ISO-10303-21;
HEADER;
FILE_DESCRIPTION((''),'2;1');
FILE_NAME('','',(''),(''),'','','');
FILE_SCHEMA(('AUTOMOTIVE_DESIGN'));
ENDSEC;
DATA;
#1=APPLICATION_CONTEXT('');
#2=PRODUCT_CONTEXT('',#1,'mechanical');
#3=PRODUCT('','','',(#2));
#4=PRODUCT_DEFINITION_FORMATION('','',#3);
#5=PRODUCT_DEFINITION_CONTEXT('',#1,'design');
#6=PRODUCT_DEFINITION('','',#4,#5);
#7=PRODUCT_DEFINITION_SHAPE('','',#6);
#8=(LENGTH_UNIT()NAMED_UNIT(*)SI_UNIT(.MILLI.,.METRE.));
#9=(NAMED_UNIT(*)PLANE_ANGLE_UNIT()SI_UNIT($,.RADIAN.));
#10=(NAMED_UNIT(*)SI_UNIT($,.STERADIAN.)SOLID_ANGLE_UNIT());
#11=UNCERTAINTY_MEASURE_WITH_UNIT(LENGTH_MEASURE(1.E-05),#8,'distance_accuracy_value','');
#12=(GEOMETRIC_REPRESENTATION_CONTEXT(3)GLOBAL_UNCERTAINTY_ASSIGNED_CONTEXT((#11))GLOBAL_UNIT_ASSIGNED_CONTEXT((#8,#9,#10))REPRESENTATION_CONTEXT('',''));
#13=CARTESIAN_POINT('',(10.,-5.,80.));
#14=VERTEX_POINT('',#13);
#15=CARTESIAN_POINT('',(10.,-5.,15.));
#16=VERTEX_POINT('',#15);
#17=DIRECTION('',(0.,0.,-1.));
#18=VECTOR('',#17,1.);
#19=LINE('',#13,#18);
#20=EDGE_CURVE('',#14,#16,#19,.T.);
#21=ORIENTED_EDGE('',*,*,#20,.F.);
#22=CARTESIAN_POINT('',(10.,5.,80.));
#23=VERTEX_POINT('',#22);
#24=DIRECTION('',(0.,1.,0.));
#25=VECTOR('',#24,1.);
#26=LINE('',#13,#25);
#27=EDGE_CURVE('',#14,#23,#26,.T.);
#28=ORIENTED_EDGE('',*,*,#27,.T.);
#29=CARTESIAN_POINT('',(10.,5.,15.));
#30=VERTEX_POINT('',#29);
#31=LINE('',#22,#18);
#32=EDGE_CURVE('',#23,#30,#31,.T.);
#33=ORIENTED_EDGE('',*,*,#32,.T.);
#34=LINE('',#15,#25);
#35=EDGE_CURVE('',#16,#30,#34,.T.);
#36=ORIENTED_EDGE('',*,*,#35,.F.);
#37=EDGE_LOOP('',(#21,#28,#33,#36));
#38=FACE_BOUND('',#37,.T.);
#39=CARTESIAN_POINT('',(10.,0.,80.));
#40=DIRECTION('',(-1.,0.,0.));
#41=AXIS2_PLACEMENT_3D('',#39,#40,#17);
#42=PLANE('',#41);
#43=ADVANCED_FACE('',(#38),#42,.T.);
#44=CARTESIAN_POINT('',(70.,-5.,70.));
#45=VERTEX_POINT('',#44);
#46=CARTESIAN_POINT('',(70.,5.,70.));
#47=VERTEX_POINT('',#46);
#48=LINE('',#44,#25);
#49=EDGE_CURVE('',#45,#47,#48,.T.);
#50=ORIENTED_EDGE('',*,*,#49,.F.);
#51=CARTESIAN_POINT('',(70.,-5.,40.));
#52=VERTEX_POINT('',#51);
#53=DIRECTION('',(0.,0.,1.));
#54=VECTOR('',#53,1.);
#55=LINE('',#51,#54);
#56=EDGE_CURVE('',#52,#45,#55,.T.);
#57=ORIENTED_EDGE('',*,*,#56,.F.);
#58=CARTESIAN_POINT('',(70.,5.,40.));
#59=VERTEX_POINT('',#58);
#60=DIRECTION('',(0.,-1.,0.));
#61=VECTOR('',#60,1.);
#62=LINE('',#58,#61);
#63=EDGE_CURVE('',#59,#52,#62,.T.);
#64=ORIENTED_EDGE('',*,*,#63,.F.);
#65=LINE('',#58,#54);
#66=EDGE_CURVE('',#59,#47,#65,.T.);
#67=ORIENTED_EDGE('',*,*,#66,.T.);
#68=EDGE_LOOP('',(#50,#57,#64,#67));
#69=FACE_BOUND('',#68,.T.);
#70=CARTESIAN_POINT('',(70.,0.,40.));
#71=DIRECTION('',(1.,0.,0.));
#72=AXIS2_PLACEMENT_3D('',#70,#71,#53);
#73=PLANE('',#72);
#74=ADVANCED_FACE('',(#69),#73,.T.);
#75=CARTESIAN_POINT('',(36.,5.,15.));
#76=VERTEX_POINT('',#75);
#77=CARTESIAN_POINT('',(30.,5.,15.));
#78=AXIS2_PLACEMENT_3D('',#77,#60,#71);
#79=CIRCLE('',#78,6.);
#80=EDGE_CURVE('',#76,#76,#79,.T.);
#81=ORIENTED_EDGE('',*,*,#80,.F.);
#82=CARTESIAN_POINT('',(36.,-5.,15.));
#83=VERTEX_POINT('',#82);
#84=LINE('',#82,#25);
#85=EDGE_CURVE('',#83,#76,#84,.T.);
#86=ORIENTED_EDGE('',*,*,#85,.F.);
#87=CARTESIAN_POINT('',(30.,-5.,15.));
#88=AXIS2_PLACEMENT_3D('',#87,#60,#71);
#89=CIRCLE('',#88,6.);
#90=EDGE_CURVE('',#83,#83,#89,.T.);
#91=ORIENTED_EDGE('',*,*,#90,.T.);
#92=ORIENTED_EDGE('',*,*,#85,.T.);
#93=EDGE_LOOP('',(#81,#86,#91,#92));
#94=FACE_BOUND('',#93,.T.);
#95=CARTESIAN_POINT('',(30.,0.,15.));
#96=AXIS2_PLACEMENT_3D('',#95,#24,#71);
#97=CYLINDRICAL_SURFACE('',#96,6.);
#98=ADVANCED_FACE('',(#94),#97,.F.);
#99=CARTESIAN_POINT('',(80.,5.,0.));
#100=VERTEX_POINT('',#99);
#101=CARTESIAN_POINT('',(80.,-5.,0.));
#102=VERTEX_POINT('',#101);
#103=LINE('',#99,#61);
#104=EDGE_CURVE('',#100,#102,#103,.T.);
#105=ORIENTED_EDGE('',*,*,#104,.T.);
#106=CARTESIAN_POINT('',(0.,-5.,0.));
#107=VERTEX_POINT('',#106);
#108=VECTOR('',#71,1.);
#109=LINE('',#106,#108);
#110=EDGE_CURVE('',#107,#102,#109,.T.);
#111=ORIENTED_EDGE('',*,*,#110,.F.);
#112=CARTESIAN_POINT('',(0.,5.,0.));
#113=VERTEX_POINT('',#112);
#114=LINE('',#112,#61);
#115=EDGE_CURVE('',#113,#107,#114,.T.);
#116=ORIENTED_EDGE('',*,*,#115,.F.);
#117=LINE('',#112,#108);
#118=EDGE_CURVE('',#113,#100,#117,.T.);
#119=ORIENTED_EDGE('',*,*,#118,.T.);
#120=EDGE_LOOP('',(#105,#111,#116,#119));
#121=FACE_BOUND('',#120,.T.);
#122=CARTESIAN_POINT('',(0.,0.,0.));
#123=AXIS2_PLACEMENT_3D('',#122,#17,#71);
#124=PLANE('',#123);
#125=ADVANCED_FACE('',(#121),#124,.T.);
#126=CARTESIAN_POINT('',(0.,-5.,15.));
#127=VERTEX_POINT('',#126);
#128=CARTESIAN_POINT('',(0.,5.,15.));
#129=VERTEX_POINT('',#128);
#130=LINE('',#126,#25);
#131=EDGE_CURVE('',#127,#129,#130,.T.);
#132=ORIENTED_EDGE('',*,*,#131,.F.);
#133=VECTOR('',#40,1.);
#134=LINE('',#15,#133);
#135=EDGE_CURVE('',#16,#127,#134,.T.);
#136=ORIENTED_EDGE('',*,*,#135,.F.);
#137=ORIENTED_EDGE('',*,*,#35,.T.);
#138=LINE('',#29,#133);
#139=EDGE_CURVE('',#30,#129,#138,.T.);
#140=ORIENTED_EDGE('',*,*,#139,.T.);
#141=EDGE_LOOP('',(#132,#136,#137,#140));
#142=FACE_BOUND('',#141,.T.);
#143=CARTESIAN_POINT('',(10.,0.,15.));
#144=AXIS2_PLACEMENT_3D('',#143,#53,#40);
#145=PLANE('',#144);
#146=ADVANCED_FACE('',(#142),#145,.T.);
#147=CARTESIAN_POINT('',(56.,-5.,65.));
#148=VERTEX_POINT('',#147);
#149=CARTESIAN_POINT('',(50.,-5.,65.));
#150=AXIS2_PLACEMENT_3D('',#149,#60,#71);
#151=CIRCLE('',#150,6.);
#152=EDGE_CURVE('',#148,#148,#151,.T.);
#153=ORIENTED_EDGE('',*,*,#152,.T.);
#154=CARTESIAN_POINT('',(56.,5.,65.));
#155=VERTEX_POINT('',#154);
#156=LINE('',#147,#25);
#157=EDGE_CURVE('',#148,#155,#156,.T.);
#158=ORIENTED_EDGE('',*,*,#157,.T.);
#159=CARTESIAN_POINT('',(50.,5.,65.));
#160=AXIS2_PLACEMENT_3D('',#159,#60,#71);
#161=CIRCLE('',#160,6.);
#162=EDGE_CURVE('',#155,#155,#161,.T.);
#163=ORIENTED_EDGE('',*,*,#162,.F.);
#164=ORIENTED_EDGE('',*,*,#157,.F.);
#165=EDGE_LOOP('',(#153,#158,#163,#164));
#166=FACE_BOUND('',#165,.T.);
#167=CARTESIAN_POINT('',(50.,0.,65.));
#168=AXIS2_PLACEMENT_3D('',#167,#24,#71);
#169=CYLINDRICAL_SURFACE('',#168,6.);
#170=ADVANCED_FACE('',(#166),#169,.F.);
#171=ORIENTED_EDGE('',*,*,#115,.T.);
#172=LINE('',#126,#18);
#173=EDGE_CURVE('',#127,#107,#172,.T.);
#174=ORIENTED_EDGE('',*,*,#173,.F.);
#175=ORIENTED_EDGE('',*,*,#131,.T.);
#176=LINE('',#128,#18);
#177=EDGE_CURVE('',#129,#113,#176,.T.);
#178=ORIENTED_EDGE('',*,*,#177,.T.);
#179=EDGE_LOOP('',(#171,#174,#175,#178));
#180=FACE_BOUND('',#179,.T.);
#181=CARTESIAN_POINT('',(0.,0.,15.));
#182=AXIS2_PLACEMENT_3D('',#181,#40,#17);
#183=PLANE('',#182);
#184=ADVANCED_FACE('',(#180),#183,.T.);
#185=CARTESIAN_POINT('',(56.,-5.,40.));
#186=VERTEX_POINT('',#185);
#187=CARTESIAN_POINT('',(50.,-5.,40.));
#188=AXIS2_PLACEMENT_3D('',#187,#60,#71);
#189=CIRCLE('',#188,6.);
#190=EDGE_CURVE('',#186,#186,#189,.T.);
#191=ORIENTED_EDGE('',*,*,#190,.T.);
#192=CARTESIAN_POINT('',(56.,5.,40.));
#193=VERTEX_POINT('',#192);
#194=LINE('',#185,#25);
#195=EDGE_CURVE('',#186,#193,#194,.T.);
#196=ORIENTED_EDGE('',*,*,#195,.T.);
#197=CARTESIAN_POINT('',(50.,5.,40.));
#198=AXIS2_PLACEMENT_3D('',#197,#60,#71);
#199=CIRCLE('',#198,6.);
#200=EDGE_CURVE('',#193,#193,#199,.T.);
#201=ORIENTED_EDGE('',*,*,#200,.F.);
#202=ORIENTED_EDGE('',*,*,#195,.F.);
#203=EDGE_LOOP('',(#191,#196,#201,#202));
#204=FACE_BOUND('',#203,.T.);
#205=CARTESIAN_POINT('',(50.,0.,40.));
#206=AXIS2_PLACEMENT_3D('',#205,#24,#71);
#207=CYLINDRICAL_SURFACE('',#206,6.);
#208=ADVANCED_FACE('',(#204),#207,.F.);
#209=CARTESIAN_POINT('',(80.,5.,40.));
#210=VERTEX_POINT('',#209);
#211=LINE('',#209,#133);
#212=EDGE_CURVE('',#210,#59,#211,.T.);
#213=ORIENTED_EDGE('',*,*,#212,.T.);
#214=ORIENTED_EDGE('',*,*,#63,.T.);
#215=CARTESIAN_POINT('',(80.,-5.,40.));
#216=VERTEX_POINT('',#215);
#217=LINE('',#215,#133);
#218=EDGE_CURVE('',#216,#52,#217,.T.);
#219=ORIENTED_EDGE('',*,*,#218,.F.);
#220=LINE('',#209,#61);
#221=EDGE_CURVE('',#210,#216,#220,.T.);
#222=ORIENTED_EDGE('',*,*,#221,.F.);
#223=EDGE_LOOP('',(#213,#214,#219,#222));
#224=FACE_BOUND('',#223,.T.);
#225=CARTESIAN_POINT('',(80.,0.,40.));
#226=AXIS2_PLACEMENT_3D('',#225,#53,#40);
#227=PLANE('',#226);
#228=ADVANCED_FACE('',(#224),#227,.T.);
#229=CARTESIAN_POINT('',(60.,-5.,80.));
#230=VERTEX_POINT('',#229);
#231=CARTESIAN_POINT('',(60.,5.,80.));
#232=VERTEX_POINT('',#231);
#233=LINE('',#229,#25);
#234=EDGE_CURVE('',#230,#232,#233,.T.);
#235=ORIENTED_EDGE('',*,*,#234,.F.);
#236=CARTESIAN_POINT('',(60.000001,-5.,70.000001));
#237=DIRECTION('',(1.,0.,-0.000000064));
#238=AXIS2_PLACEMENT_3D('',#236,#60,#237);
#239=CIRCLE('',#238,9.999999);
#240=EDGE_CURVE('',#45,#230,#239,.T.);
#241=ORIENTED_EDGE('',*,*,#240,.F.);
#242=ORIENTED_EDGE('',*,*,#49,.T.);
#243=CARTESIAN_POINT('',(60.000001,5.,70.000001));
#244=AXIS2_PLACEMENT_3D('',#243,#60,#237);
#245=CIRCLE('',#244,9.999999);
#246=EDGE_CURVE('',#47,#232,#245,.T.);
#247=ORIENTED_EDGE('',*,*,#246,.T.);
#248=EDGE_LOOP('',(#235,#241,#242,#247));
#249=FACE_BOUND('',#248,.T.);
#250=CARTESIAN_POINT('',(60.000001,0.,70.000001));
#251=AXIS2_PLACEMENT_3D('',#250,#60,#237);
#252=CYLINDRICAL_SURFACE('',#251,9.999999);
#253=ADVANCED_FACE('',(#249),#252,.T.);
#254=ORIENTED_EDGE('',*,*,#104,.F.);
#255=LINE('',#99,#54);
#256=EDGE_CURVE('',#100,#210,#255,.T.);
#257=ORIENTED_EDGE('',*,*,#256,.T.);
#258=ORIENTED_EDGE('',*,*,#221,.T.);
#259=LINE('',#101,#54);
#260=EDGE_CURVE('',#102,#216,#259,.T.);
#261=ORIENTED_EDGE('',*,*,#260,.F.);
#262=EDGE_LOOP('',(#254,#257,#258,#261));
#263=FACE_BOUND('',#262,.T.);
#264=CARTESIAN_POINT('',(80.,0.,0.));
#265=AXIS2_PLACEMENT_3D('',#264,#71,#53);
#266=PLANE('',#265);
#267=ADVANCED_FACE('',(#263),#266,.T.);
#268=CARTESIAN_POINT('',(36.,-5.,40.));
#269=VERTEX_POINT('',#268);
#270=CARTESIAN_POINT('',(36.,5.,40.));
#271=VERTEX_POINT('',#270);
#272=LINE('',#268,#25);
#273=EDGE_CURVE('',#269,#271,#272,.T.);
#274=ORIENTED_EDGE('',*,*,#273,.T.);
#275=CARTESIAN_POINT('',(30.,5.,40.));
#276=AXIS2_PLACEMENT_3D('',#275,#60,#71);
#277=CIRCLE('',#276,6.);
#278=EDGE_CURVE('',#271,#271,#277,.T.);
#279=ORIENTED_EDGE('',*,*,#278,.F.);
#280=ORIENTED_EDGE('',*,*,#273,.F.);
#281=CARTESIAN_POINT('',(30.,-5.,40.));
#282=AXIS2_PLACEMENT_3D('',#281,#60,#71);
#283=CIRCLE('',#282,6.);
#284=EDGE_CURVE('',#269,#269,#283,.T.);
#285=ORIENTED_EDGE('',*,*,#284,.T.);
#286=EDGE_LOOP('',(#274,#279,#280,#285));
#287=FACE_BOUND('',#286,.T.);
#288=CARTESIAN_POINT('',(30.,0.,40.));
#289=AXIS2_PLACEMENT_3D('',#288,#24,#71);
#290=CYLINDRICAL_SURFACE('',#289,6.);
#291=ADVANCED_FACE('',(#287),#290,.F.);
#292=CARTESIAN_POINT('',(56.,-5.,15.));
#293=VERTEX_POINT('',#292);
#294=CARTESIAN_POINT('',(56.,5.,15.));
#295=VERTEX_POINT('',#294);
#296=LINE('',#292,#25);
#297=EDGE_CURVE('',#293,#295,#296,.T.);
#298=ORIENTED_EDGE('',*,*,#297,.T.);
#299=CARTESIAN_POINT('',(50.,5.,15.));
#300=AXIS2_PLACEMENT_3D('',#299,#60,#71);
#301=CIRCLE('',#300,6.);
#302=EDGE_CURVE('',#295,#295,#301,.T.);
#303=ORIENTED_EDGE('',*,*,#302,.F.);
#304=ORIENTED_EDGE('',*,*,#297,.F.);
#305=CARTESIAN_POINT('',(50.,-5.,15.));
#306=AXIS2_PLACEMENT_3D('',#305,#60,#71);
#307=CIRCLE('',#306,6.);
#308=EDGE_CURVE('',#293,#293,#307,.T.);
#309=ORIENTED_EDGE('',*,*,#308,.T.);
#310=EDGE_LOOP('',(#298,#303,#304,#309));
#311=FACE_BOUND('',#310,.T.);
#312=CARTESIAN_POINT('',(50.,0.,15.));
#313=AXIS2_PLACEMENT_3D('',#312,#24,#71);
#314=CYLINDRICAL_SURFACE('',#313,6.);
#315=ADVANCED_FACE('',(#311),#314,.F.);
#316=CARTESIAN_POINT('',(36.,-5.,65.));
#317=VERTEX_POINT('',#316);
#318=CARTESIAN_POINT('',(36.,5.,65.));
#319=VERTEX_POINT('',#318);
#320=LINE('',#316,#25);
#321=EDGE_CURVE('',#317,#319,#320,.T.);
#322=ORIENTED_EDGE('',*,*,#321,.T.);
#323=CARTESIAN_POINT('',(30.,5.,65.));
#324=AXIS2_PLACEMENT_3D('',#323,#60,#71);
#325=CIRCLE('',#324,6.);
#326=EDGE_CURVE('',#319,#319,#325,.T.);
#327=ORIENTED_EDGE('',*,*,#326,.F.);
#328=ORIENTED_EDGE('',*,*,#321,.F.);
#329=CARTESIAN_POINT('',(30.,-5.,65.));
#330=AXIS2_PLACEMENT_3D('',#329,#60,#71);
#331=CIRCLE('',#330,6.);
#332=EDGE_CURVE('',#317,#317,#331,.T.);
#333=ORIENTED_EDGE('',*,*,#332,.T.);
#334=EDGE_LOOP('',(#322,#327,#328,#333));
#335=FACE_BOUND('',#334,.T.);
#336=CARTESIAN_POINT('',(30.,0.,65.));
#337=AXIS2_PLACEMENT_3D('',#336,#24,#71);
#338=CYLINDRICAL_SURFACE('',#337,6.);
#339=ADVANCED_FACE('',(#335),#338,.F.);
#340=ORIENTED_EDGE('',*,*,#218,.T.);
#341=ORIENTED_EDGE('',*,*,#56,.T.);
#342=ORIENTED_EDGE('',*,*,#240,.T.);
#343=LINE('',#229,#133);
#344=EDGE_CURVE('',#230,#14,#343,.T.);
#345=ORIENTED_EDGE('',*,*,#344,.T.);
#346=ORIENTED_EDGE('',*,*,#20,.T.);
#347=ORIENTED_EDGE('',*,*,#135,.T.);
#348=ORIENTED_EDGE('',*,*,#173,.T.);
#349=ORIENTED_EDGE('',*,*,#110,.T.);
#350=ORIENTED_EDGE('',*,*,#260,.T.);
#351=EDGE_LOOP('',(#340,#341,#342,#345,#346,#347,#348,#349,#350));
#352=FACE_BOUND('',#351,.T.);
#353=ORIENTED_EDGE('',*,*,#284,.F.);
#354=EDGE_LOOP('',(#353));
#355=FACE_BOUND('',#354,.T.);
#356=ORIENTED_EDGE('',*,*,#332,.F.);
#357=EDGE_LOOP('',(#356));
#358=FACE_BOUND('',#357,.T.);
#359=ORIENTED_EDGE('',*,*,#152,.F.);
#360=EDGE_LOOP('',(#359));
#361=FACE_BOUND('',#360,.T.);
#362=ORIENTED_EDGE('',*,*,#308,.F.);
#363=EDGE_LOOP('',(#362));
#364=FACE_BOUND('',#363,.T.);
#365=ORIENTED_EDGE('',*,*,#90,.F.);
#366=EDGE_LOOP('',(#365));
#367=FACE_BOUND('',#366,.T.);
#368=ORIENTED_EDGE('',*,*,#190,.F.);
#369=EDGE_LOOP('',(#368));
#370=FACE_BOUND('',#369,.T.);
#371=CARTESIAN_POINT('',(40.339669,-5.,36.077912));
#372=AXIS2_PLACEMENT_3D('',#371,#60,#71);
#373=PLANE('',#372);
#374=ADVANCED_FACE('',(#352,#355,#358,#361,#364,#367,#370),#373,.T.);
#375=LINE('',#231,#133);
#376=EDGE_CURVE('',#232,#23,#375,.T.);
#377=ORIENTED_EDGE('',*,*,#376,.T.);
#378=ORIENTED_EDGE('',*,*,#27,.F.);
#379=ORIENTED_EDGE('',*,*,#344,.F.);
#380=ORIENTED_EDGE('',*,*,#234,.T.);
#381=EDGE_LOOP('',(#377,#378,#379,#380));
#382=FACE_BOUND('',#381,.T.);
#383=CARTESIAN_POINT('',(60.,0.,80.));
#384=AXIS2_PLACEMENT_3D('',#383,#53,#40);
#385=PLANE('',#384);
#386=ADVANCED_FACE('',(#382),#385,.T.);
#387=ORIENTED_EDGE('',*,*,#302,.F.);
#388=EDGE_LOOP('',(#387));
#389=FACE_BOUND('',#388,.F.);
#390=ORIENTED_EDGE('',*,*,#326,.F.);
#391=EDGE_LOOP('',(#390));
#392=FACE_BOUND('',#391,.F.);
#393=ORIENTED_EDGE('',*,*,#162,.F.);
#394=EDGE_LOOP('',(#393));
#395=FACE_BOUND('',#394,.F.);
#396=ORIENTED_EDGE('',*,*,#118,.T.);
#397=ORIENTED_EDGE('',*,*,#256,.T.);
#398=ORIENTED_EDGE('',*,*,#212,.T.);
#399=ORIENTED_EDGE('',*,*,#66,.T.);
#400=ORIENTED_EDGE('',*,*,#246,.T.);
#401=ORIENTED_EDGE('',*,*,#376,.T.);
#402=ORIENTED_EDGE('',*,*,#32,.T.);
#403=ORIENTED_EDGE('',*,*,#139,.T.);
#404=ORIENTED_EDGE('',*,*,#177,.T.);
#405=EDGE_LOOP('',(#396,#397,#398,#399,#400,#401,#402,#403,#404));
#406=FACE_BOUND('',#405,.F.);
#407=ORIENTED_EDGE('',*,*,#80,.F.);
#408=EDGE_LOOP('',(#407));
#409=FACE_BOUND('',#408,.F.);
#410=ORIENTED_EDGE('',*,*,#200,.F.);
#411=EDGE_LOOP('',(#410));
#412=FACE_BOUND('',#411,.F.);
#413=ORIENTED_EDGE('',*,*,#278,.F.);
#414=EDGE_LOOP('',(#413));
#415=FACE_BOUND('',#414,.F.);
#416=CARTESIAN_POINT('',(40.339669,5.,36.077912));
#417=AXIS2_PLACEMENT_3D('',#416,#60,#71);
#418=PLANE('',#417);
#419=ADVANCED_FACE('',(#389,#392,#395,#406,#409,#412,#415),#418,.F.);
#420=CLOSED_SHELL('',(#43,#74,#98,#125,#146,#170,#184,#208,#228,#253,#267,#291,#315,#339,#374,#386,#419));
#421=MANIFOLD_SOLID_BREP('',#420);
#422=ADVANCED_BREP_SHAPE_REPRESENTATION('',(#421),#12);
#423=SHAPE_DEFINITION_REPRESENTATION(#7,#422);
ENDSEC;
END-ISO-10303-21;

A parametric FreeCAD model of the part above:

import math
import FreeCAD as App
import Part
import Sketcher
Q = App.Units.Quantity

doc = App.newDocument("Part")
body = doc.addObject("PartDesign::Body", "Body")

# Sketch on XZ plane
sketch1 = doc.addObject("Sketcher::SketchObject", "Sketch")
body.addObject(sketch1)
sketch1.AttachmentSupport = (doc.XZ_Plane, [""])
sketch1.MapMode = "FlatFace"
sketch1.addGeometry([
    Part.LineSegment(App.Vector(0, 15, 0), App.Vector(0, 0, 0)),  # 0
    Part.LineSegment(App.Vector(0, 0, 0), App.Vector(80, 0, 0)),  # 1
    Part.LineSegment(App.Vector(80, 0, 0), App.Vector(80, 40, 0)),  # 2
    Part.LineSegment(App.Vector(80, 40, 0), App.Vector(70, 40, 0)),  # 3
    Part.LineSegment(App.Vector(70, 40, 0), App.Vector(70, 70, 0)),  # 4
    Part.ArcOfCircle(Part.Circle(App.Vector(60, 70, 0), App.Vector(0, 0, 1), 10), math.radians(0), math.radians(90)),  # 5
    Part.LineSegment(App.Vector(60, 80, 0), App.Vector(10, 80, 0)),  # 6
    Part.LineSegment(App.Vector(10, 80, 0), App.Vector(10, 15, 0)),  # 7
    Part.LineSegment(App.Vector(10, 15, 0), App.Vector(0, 15, 0)),  # 8
    Part.Circle(App.Vector(30, 15, 0), App.Vector(0, 0, 1), 6),  # 9
    Part.Circle(App.Vector(50, 15, 0), App.Vector(0, 0, 1), 6),  # 10
    Part.Circle(App.Vector(30, 40, 0), App.Vector(0, 0, 1), 6),  # 11
    Part.Circle(App.Vector(30, 65, 0), App.Vector(0, 0, 1), 6),  # 12
    Part.Circle(App.Vector(50, 40, 0), App.Vector(0, 0, 1), 6),  # 13
    Part.Circle(App.Vector(50, 65, 0), App.Vector(0, 0, 1), 6),  # 14
], False)
sketch1.addConstraint([
    Sketcher.Constraint("Coincident", 0, 2, 1, 1),
    Sketcher.Constraint("Coincident", 1, 2, 2, 1),
    Sketcher.Constraint("Coincident", 2, 2, 3, 1),
    Sketcher.Constraint("Coincident", 3, 2, 4, 1),
    Sketcher.Constraint("Tangent", 4, 2, 5, 1),
    Sketcher.Constraint("Tangent", 5, 2, 6, 1),
    Sketcher.Constraint("Coincident", 6, 2, 7, 1),
    Sketcher.Constraint("Coincident", 7, 2, 8, 1),
    Sketcher.Constraint("Coincident", 8, 2, 0, 1),
    Sketcher.Constraint("Vertical", 0),
    Sketcher.Constraint("Horizontal", 1),
    Sketcher.Constraint("Vertical", 2),
    Sketcher.Constraint("Horizontal", 3),
    Sketcher.Constraint("Vertical", 4),
    Sketcher.Constraint("Horizontal", 6),
    Sketcher.Constraint("Vertical", 7),
    Sketcher.Constraint("Horizontal", 8),
    Sketcher.Constraint("Coincident", 0, 2, -1, 1),
    Sketcher.Constraint("Equal", 9, 10),
    Sketcher.Constraint("Equal", 10, 11),
    Sketcher.Constraint("Equal", 11, 12),
    Sketcher.Constraint("Equal", 12, 13),
    Sketcher.Constraint("Equal", 13, 14),
    Sketcher.Constraint("Horizontal", 9, 3, 10, 3),
    Sketcher.Constraint("Horizontal", 11, 3, 13, 3),
    Sketcher.Constraint("Horizontal", 12, 3, 14, 3),
    Sketcher.Constraint("Horizontal", 13, 3, 2, 2),
    Sketcher.Constraint("Horizontal", 10, 3, 7, 2),
    Sketcher.Constraint("Vertical", 9, 3, 11, 3),
    Sketcher.Constraint("Vertical", 11, 3, 12, 3),
    Sketcher.Constraint("Vertical", 10, 3, 13, 3),
    Sketcher.Constraint("Vertical", 13, 3, 14, 3),
    Sketcher.Constraint("Equal", 3, 8),
    Sketcher.Constraint("Diameter", 9, Q("12 mm")),
    Sketcher.Constraint("Radius", 5, Q("9.999999 mm")),
    Sketcher.Constraint("DistanceX", 1, 1, 1, 2, Q("80 mm")),
    Sketcher.Constraint("DistanceX", 3, 2, 3, 1, Q("10 mm")),
    Sketcher.Constraint("DistanceY", 0, 2, 0, 1, Q("15 mm")),
    Sketcher.Constraint("DistanceY", 2, 1, 2, 2, Q("40 mm")),
    Sketcher.Constraint("DistanceY", 4, 1, 4, 2, Q("30 mm")),
    Sketcher.Constraint("DistanceX", -1, 1, 9, 3, Q("30 mm")),
    Sketcher.Constraint("DistanceX", -1, 1, 10, 3, Q("50 mm")),
    Sketcher.Constraint("DistanceY", -1, 1, 12, 3, Q("65 mm")),
])
pad1 = doc.addObject("PartDesign::Pad", "Pad")
body.addObject(pad1)
pad1.Profile = sketch1
pad1.Length = 10
pad1.Midplane = True

doc.recompute()
